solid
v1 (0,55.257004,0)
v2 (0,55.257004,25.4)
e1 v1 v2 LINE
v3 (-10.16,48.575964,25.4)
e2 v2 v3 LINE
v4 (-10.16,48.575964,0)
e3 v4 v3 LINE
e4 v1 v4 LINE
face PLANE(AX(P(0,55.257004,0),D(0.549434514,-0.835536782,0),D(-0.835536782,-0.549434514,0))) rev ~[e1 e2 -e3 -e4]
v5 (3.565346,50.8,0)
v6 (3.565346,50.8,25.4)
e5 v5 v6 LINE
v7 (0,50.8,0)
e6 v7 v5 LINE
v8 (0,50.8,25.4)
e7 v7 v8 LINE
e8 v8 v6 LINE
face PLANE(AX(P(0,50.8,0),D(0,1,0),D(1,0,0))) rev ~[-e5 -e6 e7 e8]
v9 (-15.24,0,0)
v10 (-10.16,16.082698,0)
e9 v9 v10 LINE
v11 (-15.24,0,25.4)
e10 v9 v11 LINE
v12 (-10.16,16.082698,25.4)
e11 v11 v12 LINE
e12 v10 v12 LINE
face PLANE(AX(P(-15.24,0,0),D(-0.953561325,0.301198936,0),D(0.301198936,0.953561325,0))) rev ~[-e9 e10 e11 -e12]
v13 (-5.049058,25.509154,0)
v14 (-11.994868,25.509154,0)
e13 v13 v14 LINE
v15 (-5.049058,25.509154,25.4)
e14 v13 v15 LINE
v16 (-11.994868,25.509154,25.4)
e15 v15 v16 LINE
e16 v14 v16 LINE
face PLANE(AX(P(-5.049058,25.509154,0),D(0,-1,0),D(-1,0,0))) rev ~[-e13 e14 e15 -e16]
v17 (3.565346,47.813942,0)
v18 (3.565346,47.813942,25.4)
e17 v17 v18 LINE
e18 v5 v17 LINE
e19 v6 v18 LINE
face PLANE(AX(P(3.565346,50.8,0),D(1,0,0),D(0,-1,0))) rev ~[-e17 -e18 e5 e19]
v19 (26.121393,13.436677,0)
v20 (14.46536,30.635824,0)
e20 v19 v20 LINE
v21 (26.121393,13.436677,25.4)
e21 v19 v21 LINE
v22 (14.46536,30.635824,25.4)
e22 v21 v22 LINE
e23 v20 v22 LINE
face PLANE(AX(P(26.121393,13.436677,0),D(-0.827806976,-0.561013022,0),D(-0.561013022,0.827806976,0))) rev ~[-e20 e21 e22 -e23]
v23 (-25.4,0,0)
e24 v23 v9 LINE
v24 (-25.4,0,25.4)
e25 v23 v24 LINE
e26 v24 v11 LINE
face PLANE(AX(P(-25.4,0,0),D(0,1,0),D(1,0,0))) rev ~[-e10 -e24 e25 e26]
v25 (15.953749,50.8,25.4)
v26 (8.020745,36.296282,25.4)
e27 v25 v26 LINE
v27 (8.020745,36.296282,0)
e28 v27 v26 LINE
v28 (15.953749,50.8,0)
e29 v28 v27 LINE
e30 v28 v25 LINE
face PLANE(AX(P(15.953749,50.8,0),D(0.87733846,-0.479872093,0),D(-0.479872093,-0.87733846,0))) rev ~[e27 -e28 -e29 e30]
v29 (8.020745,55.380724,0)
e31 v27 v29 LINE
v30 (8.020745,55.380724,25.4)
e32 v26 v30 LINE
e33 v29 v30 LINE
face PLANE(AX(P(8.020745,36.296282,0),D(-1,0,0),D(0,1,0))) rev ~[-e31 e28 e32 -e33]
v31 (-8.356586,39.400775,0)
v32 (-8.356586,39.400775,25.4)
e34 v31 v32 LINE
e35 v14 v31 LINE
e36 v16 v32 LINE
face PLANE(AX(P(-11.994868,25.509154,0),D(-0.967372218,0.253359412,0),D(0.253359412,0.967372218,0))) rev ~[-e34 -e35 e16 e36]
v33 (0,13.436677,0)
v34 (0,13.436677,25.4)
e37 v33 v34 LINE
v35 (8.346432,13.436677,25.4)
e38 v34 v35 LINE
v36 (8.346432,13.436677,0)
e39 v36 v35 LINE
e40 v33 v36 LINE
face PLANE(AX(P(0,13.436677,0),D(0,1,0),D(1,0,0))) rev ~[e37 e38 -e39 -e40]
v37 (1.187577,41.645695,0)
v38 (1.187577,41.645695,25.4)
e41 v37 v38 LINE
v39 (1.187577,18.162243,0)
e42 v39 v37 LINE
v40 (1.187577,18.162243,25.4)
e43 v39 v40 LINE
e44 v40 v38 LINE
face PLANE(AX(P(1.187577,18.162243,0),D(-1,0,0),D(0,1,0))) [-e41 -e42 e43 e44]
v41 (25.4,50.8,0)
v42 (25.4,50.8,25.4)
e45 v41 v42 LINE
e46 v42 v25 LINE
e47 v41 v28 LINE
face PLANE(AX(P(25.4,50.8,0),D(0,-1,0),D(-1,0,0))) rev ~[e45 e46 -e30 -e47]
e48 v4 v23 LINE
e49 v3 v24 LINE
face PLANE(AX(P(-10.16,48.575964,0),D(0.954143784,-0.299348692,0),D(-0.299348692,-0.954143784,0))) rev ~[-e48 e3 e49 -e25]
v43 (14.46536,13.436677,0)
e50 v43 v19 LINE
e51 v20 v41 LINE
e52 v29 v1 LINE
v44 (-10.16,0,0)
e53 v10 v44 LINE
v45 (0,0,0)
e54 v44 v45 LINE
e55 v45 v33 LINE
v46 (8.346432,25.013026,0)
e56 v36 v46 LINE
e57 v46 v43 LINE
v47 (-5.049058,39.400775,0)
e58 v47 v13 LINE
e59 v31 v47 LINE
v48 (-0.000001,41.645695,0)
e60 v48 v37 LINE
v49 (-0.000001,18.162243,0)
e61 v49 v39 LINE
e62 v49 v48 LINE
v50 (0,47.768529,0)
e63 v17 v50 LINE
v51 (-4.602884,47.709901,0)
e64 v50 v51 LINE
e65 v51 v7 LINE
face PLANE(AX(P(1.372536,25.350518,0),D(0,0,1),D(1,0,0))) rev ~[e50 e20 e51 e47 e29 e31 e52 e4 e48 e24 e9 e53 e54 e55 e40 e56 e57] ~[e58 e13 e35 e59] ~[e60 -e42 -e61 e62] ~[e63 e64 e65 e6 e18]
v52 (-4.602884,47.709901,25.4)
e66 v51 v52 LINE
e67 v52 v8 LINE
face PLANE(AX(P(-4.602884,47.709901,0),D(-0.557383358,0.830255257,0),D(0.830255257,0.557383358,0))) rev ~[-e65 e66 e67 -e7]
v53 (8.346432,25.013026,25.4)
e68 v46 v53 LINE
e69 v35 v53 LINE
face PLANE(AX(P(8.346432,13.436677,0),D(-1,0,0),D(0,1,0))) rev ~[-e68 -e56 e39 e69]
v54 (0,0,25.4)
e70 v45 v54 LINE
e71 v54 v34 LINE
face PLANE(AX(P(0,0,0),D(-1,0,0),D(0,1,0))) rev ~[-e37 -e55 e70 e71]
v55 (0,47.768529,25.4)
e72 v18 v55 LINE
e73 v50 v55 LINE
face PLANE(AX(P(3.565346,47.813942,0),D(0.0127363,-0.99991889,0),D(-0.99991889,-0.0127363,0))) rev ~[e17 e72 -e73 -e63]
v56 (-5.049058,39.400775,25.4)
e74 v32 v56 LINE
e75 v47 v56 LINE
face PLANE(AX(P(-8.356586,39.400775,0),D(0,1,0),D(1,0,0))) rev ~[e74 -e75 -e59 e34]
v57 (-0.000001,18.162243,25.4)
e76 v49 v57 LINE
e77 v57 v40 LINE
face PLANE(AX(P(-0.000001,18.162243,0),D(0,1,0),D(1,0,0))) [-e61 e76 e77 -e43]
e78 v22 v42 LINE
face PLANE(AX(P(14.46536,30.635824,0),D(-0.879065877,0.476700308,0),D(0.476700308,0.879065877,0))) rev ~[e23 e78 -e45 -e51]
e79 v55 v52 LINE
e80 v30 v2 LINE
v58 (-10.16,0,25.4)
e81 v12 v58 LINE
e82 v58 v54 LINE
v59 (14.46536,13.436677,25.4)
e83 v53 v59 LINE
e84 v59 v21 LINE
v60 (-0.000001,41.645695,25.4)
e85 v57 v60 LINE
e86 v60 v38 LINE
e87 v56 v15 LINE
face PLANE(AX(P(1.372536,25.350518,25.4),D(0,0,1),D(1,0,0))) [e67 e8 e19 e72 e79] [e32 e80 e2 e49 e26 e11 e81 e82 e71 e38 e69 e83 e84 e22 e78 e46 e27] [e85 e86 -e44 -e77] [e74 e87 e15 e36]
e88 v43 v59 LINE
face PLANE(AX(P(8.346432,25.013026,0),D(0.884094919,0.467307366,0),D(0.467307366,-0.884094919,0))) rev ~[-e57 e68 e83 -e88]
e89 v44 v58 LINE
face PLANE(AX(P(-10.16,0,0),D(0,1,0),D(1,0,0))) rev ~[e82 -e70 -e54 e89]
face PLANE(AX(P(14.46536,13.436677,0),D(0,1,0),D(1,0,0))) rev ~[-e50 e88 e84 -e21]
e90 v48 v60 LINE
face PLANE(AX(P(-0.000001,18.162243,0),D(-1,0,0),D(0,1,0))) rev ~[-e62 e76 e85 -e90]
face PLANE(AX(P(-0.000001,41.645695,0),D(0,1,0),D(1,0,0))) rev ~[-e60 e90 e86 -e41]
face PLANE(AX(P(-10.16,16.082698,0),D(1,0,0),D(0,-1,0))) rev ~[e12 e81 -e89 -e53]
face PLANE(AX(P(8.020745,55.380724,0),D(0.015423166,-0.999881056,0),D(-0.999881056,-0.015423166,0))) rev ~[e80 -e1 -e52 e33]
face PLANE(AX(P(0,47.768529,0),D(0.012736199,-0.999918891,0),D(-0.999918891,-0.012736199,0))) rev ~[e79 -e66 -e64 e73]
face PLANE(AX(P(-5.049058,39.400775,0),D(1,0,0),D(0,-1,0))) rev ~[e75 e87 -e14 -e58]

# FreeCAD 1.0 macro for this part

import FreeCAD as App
import Part
import Sketcher
from FreeCAD import Vector
Q = App.Units.Quantity


def add_polygon(sketch, points):
    """Adds a closed chain of lines whose ends are joined by coincident constraints."""
    first, n = sketch.GeometryCount, len(points)
    for a, b in zip(points, points[1:] + points[:1]):
        sketch.addGeometry(Part.LineSegment(App.Vector(*a, 0), App.Vector(*b, 0)), False)
    for i in range(n):
        sketch.addConstraint(Sketcher.Constraint("Coincident", first + i, 2, first + (i + 1) % n, 1))

doc = App.newDocument("Part")
params = doc.addObject("Spreadsheet::Sheet", "Params")
for row, (alias, value) in enumerate([
    ("sketch1_width", "0.4 in"),
    ("pad1_length", "1 in"),
], start=1):
    params.set(f"A{row}", alias)
    params.set(f"B{row}", "=" + value)
    params.setAlias(f"B{row}", alias)

body = doc.addObject("PartDesign::Body", "Body")

sketch1 = body.newObject("Sketcher::SketchObject", "Sketch")
sketch1.AttachmentSupport = (doc.getObject("XY_Plane"), [""])
sketch1.MapMode = "FlatFace"
add_polygon(sketch1, [(-10.16, 0), (0, 0), (0, 13.436677), (8.346432, 13.436677), (8.346432, 25.013026), (14.46536, 13.436677), (26.121393, 13.436677), (14.46536, 30.635824), (25.4, 50.8), (15.953749, 50.8), (8.020745, 36.296282), (8.020745, 55.380724), (0, 55.257004), (-10.16, 48.575964), (-25.4, 0), (-15.24, 0), (-10.16, 16.082698)])
add_polygon(sketch1, [(-5.049058, 25.509154), (-11.994868, 25.509154), (-8.356586, 39.400775), (-5.049058, 39.400775)])
add_polygon(sketch1, [(1.187577, 18.162243), (0, 18.162243), (0, 41.645695), (1.187577, 41.645695)])
add_polygon(sketch1, [(3.565346, 50.8), (3.565346, 47.813942), (0, 47.768529), (-4.602884, 47.709901), (0, 50.8)])
sketch1.addConstraint([
    Sketcher.Constraint("Horizontal", 0),
    Sketcher.Constraint("Vertical", 1),
    Sketcher.Constraint("Horizontal", 2),
    Sketcher.Constraint("Vertical", 3),
    Sketcher.Constraint("Horizontal", 5),
    Sketcher.Constraint("Horizontal", 8),
    Sketcher.Constraint("Vertical", 10),
    Sketcher.Constraint("Horizontal", 14),
    Sketcher.Constraint("Vertical", 16),
    Sketcher.Constraint("Horizontal", 17),
    Sketcher.Constraint("Horizontal", 19),
    Sketcher.Constraint("Vertical", 20),
    Sketcher.Constraint("Horizontal", 21),
    Sketcher.Constraint("Vertical", 22),
    Sketcher.Constraint("Horizontal", 23),
    Sketcher.Constraint("Vertical", 24),
    Sketcher.Constraint("Vertical", 25),
    Sketcher.Constraint("Horizontal", 29),
    Sketcher.Constraint("Coincident", 0, 2, -1, 1),
    Sketcher.Constraint("PointOnObject", 11, 2, -2),
    Sketcher.Constraint("PointOnObject", 13, 2, -1),
    Sketcher.Constraint("PointOnObject", 21, 2, -2),
    Sketcher.Constraint("PointOnObject", 26, 2, -2),
    Sketcher.Constraint("PointOnObject", 28, 2, -2),
    Sketcher.Constraint("Parallel", 26, 27),
    Sketcher.Constraint("Horizontal", 2, 2, 4, 2),
    Sketcher.Constraint("Horizontal", 8, 2, 28, 2),
    Sketcher.Constraint("Vertical", 4, 2, 6, 2),
    Sketcher.Constraint("Vertical", 12, 2, 15, 2),
    Sketcher.Constraint("Equal", 0, 14),
    Sketcher.Constraint("DistanceX", 0, 1, 0, 2, Q("0.4 in")),
    Sketcher.Constraint("DistanceX", -1, 1, 7, 2, Q("1 in")),
    Sketcher.Constraint("DistanceY", -1, 1, 7, 2, Q("2 in")),
    Sketcher.Constraint("DistanceX", 13, 2, -1, 1, Q("1 in")),
    Sketcher.Constraint("DistanceY", 16, 2, 16, 1, 16.082698),
    Sketcher.Constraint("Distance", 11, 8.021699),
    Sketcher.Constraint("DistanceX", 8, 2, 8, 1, 9.446251),
    Sketcher.Constraint("DistanceX", 17, 2, 17, 1, 6.94581),
    Sketcher.Constraint("DistanceX", 19, 1, 19, 2, 3.307528),
    Sketcher.Constraint("DistanceY", 3, 1, 3, 2, 11.576349),
    Sketcher.Constraint("DistanceY", 20, 2, 20, 1, 13.891621),
    Sketcher.Constraint("DistanceY", -1, 1, 27, 2, 47.709901),
    Sketcher.Constraint("DistanceY", 6, 2, 10, 2, 24.7449),
    Sketcher.Constraint("DistanceY", 3, 2, 10, 2, 30.367698),
    Sketcher.Constraint("DistanceX", 17, 2, 3, 2, 20.3413),
    Sketcher.Constraint("DistanceX", 25, 2, 10, 2, 4.455399),
    Sketcher.Constraint("Distance", 4, 13.094011),
    Sketcher.Constraint("Distance", 6, 20.77676),
    Sketcher.Constraint("Distance", 13, 50.910528),
    Sketcher.Constraint("Distance", 28, 5.543938),
    Sketcher.Constraint("DistanceX", 2, 1, 2, 2, 8.346432),
    Sketcher.Constraint("DistanceX", 21, 2, 21, 1, 1.187577),
    Sketcher.Constraint("DistanceX", 29, 1, 29, 2, 3.565346),
    Sketcher.Constraint("DistanceY", 1, 1, 1, 2, 13.436677),
    Sketcher.Constraint("DistanceY", 10, 1, 10, 2, 19.084442),
    Sketcher.Constraint("DistanceY", 22, 1, 22, 2, 23.483452),
    Sketcher.Constraint("DistanceY", 25, 2, 25, 1, 2.986058),
    Sketcher.Constraint("DistanceY", 17, 2, 12, 2, 23.06681),
    Sketcher.Constraint("DistanceY", 21, 2, 20, 2, 7.346911),
])
sketch1.setExpression("Constraints[60]", "Params.sketch1_width")
pad1 = body.newObject("PartDesign::Pad", "Pad")
pad1.Profile = sketch1
pad1.setExpression("Length", "Params.pad1_length")

doc.recompute()
